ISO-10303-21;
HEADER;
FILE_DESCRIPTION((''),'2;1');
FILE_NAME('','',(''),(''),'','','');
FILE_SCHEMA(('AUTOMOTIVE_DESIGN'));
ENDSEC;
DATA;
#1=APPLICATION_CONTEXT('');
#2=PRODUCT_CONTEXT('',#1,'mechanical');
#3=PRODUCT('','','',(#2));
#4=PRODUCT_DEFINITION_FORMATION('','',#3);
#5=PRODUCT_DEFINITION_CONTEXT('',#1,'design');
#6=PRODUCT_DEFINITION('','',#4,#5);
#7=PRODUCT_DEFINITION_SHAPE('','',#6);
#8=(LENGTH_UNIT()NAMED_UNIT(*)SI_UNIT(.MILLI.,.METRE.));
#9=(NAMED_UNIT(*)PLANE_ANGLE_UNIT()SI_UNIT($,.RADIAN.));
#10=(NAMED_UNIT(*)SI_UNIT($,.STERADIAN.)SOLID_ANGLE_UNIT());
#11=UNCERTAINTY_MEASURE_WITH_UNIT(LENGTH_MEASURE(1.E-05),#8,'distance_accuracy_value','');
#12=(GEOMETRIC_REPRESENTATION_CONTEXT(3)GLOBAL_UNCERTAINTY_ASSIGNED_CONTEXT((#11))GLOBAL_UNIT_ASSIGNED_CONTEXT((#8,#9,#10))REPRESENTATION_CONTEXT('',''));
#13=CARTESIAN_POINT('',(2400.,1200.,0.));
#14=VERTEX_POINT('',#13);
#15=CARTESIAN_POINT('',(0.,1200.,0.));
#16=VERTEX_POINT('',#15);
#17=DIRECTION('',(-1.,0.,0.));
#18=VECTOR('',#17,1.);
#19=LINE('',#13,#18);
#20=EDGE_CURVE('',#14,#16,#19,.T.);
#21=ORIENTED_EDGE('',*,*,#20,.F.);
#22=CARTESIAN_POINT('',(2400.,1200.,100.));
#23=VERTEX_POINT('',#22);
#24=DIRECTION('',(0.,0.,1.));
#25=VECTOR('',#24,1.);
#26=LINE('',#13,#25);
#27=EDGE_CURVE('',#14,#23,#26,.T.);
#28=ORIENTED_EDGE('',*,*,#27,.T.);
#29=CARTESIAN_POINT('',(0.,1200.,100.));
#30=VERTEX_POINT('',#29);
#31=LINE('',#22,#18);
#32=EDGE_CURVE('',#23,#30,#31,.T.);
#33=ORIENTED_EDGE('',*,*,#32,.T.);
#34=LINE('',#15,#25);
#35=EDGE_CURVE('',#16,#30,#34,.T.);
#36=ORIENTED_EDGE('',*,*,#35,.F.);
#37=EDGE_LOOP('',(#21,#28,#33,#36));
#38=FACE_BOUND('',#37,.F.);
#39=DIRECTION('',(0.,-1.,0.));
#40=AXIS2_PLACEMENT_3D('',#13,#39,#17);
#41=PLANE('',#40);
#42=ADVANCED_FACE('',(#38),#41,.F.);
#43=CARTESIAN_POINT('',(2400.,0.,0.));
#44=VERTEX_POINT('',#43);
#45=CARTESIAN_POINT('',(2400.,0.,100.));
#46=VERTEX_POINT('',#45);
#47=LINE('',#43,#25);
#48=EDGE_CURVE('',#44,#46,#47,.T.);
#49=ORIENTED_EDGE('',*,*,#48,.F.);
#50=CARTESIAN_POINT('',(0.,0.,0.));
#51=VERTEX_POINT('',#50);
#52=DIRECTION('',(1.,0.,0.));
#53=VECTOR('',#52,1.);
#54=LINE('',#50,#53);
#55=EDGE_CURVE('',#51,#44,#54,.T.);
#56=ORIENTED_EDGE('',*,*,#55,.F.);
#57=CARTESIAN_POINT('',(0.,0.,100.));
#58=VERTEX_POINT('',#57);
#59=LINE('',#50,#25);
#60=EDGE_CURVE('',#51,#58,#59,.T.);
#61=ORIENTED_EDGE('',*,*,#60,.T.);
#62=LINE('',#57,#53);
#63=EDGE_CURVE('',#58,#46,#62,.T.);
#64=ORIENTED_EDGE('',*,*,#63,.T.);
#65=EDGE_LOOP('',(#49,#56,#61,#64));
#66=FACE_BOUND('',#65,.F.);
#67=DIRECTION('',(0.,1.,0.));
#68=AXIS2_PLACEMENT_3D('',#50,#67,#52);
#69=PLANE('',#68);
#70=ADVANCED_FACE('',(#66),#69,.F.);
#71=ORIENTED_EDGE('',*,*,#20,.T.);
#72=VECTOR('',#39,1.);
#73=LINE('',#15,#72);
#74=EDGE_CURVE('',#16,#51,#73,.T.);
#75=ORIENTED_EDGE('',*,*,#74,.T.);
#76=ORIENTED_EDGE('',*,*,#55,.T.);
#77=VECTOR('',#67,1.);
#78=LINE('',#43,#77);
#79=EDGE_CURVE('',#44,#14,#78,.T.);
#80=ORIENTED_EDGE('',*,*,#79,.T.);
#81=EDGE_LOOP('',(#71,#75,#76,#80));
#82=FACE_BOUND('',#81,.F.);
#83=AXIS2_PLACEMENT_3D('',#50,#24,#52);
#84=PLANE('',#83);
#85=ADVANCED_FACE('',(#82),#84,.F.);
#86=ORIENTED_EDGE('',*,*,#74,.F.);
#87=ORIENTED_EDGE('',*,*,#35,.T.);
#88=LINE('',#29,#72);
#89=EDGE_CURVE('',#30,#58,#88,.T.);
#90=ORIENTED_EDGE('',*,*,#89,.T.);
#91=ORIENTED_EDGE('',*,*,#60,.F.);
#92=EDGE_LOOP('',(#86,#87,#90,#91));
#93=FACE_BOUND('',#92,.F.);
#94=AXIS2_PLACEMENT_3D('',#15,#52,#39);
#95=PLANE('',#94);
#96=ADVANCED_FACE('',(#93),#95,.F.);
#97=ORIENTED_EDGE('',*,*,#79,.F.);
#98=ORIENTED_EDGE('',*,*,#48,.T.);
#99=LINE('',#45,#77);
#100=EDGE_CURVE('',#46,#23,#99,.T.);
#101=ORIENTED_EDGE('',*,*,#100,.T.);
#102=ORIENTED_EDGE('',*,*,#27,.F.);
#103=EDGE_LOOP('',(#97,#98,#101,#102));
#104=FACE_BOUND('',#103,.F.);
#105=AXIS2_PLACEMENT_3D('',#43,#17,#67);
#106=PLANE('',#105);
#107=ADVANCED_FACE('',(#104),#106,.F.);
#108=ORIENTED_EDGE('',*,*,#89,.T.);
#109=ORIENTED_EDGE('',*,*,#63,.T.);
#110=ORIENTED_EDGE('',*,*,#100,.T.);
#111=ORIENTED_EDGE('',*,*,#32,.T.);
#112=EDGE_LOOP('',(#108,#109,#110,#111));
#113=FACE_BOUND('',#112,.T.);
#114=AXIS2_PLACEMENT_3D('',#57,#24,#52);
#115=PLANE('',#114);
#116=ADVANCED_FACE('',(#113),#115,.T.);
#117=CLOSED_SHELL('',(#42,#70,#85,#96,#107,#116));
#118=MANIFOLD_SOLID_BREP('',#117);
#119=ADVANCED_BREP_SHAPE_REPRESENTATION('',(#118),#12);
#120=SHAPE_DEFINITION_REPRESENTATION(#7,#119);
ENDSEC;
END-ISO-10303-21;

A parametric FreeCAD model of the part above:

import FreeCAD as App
import Part
import Sketcher
Q = App.Units.Quantity


def add_polygon(sketch, points):
    """Adds a closed chain of lines whose ends are joined by coincident constraints."""
    first, n = sketch.GeometryCount, len(points)
    for a, b in zip(points, points[1:] + points[:1]):
        sketch.addGeometry(Part.LineSegment(App.Vector(*a, 0), App.Vector(*b, 0)), False)
    for i in range(n):
        sketch.addConstraint(Sketcher.Constraint("Coincident", first + i, 2, first + (i + 1) % n, 1))

doc = App.newDocument("Part")
params = doc.addObject("Spreadsheet::Sheet", "Params")
for row, (alias, value) in enumerate([
    ("pad1_length", "3.9370079 in"),
], start=1):
    params.set(f"A{row}", alias)
    params.set(f"B{row}", "=" + value)
    params.setAlias(f"B{row}", alias)

body = doc.addObject("PartDesign::Body", "Body")

# Sketch on XY plane
sketch1 = doc.addObject("Sketcher::SketchObject", "Sketch")
body.addObject(sketch1)
sketch1.AttachmentSupport = (doc.XY_Plane, [""])
sketch1.MapMode = "FlatFace"
add_polygon(sketch1, [(0, 1200), (0, 0), (2400, 0), (2400, 1200)])  # lines 0-3
sketch1.addConstraint([
    Sketcher.Constraint("Vertical", 0),
    Sketcher.Constraint("Horizontal", 1),
    Sketcher.Constraint("Vertical", 2),
    Sketcher.Constraint("Horizontal", 3),
    Sketcher.Constraint("Coincident", 0, 2, -1, 1),
    Sketcher.Constraint("DistanceX", 1, 1, 1, 2, Q("94.4882 in")),
    Sketcher.Constraint("DistanceY", 0, 2, 0, 1, Q("47.2441 in")),
])
pad1 = doc.addObject("PartDesign::Pad", "Pad")
body.addObject(pad1)
pad1.Profile = sketch1
pad1.setExpression("Length", "Params.pad1_length")

doc.recompute()
